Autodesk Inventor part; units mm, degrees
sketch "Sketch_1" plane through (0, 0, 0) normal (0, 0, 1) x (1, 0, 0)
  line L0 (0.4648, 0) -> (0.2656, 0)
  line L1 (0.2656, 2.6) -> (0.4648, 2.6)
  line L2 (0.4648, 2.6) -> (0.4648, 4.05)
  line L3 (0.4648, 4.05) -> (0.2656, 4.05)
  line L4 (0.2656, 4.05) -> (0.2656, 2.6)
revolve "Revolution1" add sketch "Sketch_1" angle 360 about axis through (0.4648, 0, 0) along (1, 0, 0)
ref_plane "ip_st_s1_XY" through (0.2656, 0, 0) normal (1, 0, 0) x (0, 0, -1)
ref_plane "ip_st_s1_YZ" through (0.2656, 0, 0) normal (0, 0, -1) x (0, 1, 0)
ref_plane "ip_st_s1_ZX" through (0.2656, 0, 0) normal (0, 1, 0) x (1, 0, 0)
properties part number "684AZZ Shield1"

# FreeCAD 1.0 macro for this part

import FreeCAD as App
import Part
import Sketcher
from FreeCAD import Vector
Q = App.Units.Quantity

doc = App.newDocument("Part")
params = doc.addObject("Spreadsheet::Sheet", "Params")
for row, (alias, value) in enumerate([
    ("sketch1_height", "1.45 mm"),
    ("revolution_angle", "360 deg"),
], start=1):
    params.set(f"A{row}", alias)
    params.set(f"B{row}", "=" + value)
    params.setAlias(f"B{row}", alias)

body = doc.addObject("PartDesign::Body", "Body")

# Sketch on XY plane
sketch1 = body.newObject("Sketcher::SketchObject", "Sketch")
sketch1.AttachmentSupport = (doc.getObject("XY_Plane"), [""])
sketch1.MapMode = "FlatFace"
sketch1.addGeometry(Part.LineSegment(Vector(0.27, 4.05, 0), Vector(0.27, 2.6, 0)), False)
sketch1.addGeometry(Part.LineSegment(Vector(0.27, 2.6, 0), Vector(0.46, 2.6, 0)), False)
sketch1.addGeometry(Part.LineSegment(Vector(0.46, 2.6, 0), Vector(0.46, 4.05, 0)), False)
sketch1.addGeometry(Part.LineSegment(Vector(0.46, 4.05, 0), Vector(0.27, 4.05, 0)), False)
sketch1.addConstraint(Sketcher.Constraint("Coincident", 0, 2, 1, 1))
sketch1.addConstraint(Sketcher.Constraint("Coincident", 1, 2, 2, 1))
sketch1.addConstraint(Sketcher.Constraint("Coincident", 2, 2, 3, 1))
sketch1.addConstraint(Sketcher.Constraint("Coincident", 3, 2, 0, 1))
sketch1.addConstraint(Sketcher.Constraint("Vertical", 0))
sketch1.addConstraint(Sketcher.Constraint("Horizontal", 1))
sketch1.addConstraint(Sketcher.Constraint("Vertical", 2))
sketch1.addConstraint(Sketcher.Constraint("Horizontal", 3))
sketch1.addConstraint(Sketcher.Constraint("DistanceY", 0, 2, 0, 1, Q("1.45 mm")))
sketch1.addConstraint(Sketcher.Constraint("DistanceY", -1, 1, 0, 2, Q("2.6 mm")))
sketch1.addConstraint(Sketcher.Constraint("DistanceX", 1, 1, 1, 2, Q("0.1992 mm")))
sketch1.addConstraint(Sketcher.Constraint("DistanceX", -1, 1, 0, 2, Q("0.2656 mm")))
sketch1.setExpression("Constraints[8]", "Params.sketch1_height")
revolution = body.newObject("PartDesign::Revolution", "Revolution")
revolution.Profile = sketch1
revolution.ReferenceAxis = (sketch1, ["H_Axis"])
revolution.setExpression("Angle", "Params.revolution_angle")

doc.recompute()
